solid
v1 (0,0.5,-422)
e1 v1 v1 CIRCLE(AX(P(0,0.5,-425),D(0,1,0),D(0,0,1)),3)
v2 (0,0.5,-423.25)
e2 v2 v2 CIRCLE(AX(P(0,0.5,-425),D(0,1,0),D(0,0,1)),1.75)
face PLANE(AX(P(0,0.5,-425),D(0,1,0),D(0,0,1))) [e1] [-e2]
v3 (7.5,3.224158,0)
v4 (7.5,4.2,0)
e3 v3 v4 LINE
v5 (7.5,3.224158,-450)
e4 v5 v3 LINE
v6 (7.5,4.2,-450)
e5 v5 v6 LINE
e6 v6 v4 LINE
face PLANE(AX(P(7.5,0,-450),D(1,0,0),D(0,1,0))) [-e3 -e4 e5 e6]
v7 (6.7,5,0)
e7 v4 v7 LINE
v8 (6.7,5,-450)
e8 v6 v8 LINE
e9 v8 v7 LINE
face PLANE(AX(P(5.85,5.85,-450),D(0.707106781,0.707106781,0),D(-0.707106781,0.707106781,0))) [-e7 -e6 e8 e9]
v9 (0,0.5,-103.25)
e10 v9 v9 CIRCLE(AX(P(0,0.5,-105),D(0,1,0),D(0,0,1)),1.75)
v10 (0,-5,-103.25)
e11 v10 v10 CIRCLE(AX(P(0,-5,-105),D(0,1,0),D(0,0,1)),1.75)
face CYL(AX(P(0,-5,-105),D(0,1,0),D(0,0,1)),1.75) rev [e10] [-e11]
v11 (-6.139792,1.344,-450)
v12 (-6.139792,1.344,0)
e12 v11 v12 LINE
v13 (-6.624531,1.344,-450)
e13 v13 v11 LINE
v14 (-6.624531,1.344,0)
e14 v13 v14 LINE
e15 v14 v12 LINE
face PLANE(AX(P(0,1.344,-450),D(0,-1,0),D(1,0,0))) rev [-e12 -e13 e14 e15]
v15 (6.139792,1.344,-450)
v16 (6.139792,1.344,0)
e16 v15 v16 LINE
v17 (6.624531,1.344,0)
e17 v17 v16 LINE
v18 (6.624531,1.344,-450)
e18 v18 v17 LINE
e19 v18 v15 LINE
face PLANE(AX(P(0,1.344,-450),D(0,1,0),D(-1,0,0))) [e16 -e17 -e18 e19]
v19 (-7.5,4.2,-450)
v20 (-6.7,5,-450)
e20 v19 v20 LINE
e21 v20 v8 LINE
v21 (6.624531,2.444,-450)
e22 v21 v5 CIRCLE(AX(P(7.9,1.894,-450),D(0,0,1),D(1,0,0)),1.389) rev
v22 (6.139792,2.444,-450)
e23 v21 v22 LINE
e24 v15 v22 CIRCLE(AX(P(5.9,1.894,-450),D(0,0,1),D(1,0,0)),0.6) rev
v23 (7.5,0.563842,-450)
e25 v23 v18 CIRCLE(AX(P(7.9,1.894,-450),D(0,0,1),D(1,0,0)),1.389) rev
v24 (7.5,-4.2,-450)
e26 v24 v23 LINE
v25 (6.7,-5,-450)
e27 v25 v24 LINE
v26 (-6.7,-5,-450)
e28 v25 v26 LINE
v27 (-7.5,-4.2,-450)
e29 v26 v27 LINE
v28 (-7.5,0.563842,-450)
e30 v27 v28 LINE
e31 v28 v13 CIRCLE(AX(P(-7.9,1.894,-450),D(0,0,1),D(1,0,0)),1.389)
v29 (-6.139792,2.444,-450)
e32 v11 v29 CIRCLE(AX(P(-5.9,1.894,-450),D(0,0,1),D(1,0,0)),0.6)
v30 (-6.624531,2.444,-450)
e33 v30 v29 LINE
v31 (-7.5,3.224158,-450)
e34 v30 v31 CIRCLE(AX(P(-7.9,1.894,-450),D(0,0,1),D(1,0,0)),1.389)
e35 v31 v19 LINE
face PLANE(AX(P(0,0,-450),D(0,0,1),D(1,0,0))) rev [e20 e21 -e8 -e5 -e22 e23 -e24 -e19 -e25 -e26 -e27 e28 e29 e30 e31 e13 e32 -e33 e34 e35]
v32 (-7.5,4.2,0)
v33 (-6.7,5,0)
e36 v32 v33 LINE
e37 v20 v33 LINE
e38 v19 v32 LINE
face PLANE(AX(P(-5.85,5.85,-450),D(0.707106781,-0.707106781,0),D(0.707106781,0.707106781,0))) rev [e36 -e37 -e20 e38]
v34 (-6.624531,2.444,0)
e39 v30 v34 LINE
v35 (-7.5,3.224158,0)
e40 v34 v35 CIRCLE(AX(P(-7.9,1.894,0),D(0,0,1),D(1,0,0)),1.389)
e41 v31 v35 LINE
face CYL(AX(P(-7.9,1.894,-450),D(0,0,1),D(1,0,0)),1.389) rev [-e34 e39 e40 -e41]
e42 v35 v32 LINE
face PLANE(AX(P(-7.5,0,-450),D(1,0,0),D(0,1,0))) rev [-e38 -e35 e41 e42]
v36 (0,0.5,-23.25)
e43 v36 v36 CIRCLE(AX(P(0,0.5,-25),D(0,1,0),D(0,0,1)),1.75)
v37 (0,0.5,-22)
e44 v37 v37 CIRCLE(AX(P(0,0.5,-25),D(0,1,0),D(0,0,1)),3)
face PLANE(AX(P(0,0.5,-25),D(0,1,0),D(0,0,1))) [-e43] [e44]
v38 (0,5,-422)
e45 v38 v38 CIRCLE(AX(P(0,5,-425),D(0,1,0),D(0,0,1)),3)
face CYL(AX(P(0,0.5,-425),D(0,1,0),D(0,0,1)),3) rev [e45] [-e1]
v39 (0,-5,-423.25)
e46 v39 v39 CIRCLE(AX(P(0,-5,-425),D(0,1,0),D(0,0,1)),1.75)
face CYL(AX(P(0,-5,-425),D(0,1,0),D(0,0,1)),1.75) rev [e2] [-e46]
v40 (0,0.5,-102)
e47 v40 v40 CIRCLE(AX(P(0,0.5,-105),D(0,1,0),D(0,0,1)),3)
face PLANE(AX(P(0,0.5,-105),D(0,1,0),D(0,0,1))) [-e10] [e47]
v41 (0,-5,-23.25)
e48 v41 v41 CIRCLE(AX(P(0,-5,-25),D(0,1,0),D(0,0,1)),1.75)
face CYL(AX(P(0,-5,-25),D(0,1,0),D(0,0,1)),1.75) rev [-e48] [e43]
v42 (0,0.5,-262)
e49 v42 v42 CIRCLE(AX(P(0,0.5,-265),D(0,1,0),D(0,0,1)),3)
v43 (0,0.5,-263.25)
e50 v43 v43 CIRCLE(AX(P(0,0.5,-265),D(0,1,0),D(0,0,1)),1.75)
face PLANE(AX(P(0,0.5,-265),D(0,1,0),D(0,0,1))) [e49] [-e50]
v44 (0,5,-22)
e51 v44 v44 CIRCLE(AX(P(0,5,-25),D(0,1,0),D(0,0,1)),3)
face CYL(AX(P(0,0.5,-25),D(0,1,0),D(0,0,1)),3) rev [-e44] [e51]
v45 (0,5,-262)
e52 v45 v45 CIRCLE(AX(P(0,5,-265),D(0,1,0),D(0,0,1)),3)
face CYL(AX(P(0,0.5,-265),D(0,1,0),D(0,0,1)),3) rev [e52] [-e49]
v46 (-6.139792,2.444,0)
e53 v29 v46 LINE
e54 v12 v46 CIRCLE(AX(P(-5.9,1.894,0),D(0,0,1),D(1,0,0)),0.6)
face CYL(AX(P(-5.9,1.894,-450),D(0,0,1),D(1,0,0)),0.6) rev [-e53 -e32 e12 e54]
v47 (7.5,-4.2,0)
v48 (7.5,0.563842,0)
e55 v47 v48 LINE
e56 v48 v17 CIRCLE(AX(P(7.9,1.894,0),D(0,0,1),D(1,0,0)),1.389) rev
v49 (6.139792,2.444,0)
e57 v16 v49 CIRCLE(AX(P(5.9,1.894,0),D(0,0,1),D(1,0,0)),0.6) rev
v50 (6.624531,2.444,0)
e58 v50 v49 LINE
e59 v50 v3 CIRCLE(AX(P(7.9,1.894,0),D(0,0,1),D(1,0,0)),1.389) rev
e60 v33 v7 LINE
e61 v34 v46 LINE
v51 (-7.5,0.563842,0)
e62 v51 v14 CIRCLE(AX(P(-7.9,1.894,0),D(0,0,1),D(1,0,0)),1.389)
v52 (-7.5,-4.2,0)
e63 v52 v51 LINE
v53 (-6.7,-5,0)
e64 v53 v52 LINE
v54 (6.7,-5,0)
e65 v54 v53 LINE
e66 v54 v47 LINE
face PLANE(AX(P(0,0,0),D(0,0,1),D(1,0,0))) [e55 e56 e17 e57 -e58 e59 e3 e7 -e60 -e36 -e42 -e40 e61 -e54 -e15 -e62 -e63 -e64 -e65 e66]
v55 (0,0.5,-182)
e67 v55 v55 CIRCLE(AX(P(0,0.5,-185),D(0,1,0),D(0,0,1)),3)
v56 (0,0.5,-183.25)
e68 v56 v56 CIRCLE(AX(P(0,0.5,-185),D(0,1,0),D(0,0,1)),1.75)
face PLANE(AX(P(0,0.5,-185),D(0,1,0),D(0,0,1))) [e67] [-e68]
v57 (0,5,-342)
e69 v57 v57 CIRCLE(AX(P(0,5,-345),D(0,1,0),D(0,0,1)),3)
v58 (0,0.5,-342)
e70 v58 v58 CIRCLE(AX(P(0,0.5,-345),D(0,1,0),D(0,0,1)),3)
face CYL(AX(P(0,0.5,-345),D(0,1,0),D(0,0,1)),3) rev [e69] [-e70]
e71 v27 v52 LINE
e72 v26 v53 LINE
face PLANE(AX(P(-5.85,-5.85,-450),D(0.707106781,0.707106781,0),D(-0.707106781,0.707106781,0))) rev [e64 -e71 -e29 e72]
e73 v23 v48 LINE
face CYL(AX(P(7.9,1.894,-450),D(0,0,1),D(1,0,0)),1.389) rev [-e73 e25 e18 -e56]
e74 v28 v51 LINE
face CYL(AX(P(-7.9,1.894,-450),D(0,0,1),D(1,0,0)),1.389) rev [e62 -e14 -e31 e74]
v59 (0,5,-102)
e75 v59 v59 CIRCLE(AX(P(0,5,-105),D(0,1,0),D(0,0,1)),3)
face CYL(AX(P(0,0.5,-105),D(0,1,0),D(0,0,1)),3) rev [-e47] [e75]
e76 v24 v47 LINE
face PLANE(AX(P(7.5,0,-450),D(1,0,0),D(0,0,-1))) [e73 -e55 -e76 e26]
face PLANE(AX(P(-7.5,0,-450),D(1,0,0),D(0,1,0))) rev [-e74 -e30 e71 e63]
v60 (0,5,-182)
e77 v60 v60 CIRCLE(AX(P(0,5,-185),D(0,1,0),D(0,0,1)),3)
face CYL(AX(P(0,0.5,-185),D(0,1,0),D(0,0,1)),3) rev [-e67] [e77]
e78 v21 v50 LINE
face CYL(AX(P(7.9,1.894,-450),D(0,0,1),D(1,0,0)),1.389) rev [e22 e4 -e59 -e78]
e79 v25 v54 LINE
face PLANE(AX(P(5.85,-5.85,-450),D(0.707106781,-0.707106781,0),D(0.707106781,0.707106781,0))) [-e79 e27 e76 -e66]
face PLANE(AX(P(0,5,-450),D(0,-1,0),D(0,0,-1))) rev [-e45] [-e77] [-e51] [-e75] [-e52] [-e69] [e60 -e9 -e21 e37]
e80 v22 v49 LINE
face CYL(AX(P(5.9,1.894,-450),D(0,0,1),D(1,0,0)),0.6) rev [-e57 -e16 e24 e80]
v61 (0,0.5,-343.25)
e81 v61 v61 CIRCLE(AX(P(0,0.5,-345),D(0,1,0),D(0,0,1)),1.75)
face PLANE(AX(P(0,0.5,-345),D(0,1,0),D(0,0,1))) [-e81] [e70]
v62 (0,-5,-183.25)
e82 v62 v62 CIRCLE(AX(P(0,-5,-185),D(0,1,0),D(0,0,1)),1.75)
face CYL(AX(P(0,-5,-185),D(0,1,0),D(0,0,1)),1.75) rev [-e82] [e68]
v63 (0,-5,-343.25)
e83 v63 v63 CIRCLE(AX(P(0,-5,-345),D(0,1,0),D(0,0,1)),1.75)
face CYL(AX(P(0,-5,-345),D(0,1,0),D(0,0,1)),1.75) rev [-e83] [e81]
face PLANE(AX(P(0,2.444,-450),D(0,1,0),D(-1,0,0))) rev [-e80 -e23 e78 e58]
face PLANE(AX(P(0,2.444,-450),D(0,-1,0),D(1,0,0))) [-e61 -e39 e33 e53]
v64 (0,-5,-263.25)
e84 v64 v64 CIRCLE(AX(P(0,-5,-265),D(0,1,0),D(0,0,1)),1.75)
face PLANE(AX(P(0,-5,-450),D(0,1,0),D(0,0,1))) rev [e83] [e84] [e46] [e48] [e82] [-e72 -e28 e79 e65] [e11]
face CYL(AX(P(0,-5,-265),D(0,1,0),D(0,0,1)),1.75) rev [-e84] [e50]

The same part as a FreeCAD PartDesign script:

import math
import FreeCAD as App
import Part
import Sketcher

V = App.Vector

doc = App.newDocument("Part")
body = doc.addObject("PartDesign::Body", "Body")

# Sketch on XY plane
sketch1 = body.newObject("Sketcher::SketchObject", "Sketch")
sketch1.AttachmentSupport = (doc.getObject("XY_Plane"), [""])
sketch1.MapMode = "FlatFace"
sketch1.addGeometry(Part.LineSegment(V(6.14, 2.44, 0), V(6.62, 2.44, 0)), False)
sketch1.addGeometry(Part.ArcOfCircle(Part.Circle(V(7.9, 1.89, 0), V(0, 0, 1), 1.39), math.radians(107), math.radians(157)), False)
sketch1.addGeometry(Part.LineSegment(V(7.5, 3.22, 0), V(7.5, 4.2, 0)), False)
sketch1.addGeometry(Part.LineSegment(V(7.5, 4.2, 0), V(6.7, 5, 0)), False)
sketch1.addGeometry(Part.LineSegment(V(6.7, 5, 0), V(-6.7, 5, 0)), False)
sketch1.addGeometry(Part.LineSegment(V(-6.7, 5, 0), V(-7.5, 4.2, 0)), False)
sketch1.addGeometry(Part.LineSegment(V(-7.5, 4.2, 0), V(-7.5, 3.22, 0)), False)
sketch1.addGeometry(Part.ArcOfCircle(Part.Circle(V(-7.9, 1.89, 0), V(0, 0, 1), 1.39), math.radians(23), math.radians(73)), False)
sketch1.addGeometry(Part.LineSegment(V(-6.62, 2.44, 0), V(-6.14, 2.44, 0)), False)
sketch1.addGeometry(Part.ArcOfCircle(Part.Circle(V(-5.9, 1.89, 0), V(0, 0, 1), 0.6), math.radians(-114), math.radians(114)), False)
sketch1.addGeometry(Part.LineSegment(V(-6.14, 1.34, 0), V(-6.62, 1.34, 0)), False)
sketch1.addGeometry(Part.ArcOfCircle(Part.Circle(V(-7.9, 1.89, 0), V(0, 0, 1), 1.39), math.radians(-73), math.radians(-23)), False)
sketch1.addGeometry(Part.LineSegment(V(-7.5, 0.56, 0), V(-7.5, -4.2, 0)), False)
sketch1.addGeometry(Part.LineSegment(V(-7.5, -4.2, 0), V(-6.7, -5, 0)), False)
sketch1.addGeometry(Part.LineSegment(V(-6.7, -5, 0), V(6.7, -5, 0)), False)
sketch1.addGeometry(Part.LineSegment(V(6.7, -5, 0), V(7.5, -4.2, 0)), False)
sketch1.addGeometry(Part.LineSegment(V(7.5, -4.2, 0), V(7.5, 0.56, 0)), False)
sketch1.addGeometry(Part.ArcOfCircle(Part.Circle(V(7.9, 1.89, 0), V(0, 0, 1), 1.39), math.radians(-157), math.radians(-107)), False)
sketch1.addGeometry(Part.LineSegment(V(6.62, 1.34, 0), V(6.14, 1.34, 0)), False)
sketch1.addGeometry(Part.ArcOfCircle(Part.Circle(V(5.9, 1.89, 0), V(0, 0, 1), 0.6), math.radians(66), math.radians(294)), False)
sketch1.addConstraint(Sketcher.Constraint("Coincident", 0, 2, 1, 2))
sketch1.addConstraint(Sketcher.Constraint("Coincident", 1, 1, 2, 1))
sketch1.addConstraint(Sketcher.Constraint("Coincident", 2, 2, 3, 1))
sketch1.addConstraint(Sketcher.Constraint("Coincident", 3, 2, 4, 1))
sketch1.addConstraint(Sketcher.Constraint("Coincident", 4, 2, 5, 1))
sketch1.addConstraint(Sketcher.Constraint("Coincident", 5, 2, 6, 1))
sketch1.addConstraint(Sketcher.Constraint("Coincident", 6, 2, 7, 2))
sketch1.addConstraint(Sketcher.Constraint("Coincident", 7, 1, 8, 1))
sketch1.addConstraint(Sketcher.Constraint("Coincident", 8, 2, 9, 2))
sketch1.addConstraint(Sketcher.Constraint("Coincident", 9, 1, 10, 1))
sketch1.addConstraint(Sketcher.Constraint("Coincident", 10, 2, 11, 2))
sketch1.addConstraint(Sketcher.Constraint("Coincident", 11, 1, 12, 1))
sketch1.addConstraint(Sketcher.Constraint("Coincident", 12, 2, 13, 1))
sketch1.addConstraint(Sketcher.Constraint("Coincident", 13, 2, 14, 1))
sketch1.addConstraint(Sketcher.Constraint("Coincident", 14, 2, 15, 1))
sketch1.addConstraint(Sketcher.Constraint("Coincident", 15, 2, 16, 1))
sketch1.addConstraint(Sketcher.Constraint("Coincident", 16, 2, 17, 2))
sketch1.addConstraint(Sketcher.Constraint("Coincident", 17, 1, 18, 1))
sketch1.addConstraint(Sketcher.Constraint("Coincident", 18, 2, 19, 2))
sketch1.addConstraint(Sketcher.Constraint("Coincident", 19, 1, 0, 1))
sketch1.addConstraint(Sketcher.Constraint("Horizontal", 0))
sketch1.addConstraint(Sketcher.Constraint("Vertical", 2))
sketch1.addConstraint(Sketcher.Constraint("Horizontal", 4))
sketch1.addConstraint(Sketcher.Constraint("Vertical", 6))
sketch1.addConstraint(Sketcher.Constraint("Horizontal", 8))
sketch1.addConstraint(Sketcher.Constraint("Horizontal", 10))
sketch1.addConstraint(Sketcher.Constraint("Vertical", 12))
sketch1.addConstraint(Sketcher.Constraint("Horizontal", 14))
sketch1.addConstraint(Sketcher.Constraint("Vertical", 16))
sketch1.addConstraint(Sketcher.Constraint("Horizontal", 18))
sketch1.addConstraint(Sketcher.Constraint("Coincident", 11, 3, 7, 3))
sketch1.addConstraint(Sketcher.Constraint("Coincident", 17, 3, 1, 3))
sketch1.addConstraint(Sketcher.Constraint("Equal", 1, 7))
sketch1.addConstraint(Sketcher.Constraint("Equal", 7, 11))
sketch1.addConstraint(Sketcher.Constraint("Equal", 11, 17))
sketch1.addConstraint(Sketcher.Constraint("Equal", 9, 19))
sketch1.addConstraint(Sketcher.Constraint("Symmetric", 2, 2, 12, 2, -1, 1))
sketch1.addConstraint(Sketcher.Constraint("Symmetric", 3, 2, 13, 2, -1, 1))
sketch1.addConstraint(Sketcher.Constraint("Symmetric", 5, 2, 15, 2, -1, 1))
sketch1.addConstraint(Sketcher.Constraint("Symmetric", 1, 3, 7, 3, -2))
sketch1.addConstraint(Sketcher.Constraint("Symmetric", 9, 3, 19, 3, -2))
sketch1.addConstraint(Sketcher.Constraint("Symmetric", 2, 2, 5, 2, -2))
sketch1.addConstraint(Sketcher.Constraint("Perpendicular", 3, 5))
sketch1.addConstraint(Sketcher.Constraint("Perpendicular", 13, 15))
sketch1.addConstraint(Sketcher.Constraint("Horizontal", 7, 3, 9, 3))
sketch1.addConstraint(Sketcher.Constraint("Horizontal", 0, 2, 7, 1))
sketch1.addConstraint(Sketcher.Constraint("Horizontal", 10, 2, 17, 1))
sketch1.addConstraint(Sketcher.Constraint("Vertical", 8, 2, 9, 1))
sketch1.addConstraint(Sketcher.Constraint("Vertical", 4, 2, 13, 2))
sketch1.addConstraint(Sketcher.Constraint("Radius", 9, 0.6))
sketch1.addConstraint(Sketcher.Constraint("DistanceX", 4, 2, 4, 1, 13.4))
sketch1.addConstraint(Sketcher.Constraint("DistanceY", -1, 1, 3, 2, 5.0))
sketch1.addConstraint(Sketcher.Constraint("Radius", 1, 1.389))
sketch1.addConstraint(Sketcher.Constraint("DistanceX", 7, 3, 9, 3, 2.0))
sketch1.addConstraint(Sketcher.Constraint("DistanceX", -1, 1, 1, 3, 7.9))
sketch1.addConstraint(Sketcher.Constraint("DistanceX", -1, 1, 1, 1, 7.5))
sketch1.addConstraint(Sketcher.Constraint("DistanceY", 9, 1, 8, 2, 1.1))
sketch1.addConstraint(Sketcher.Constraint("DistanceY", -1, 1, 1, 3, 1.894))
pad1 = body.newObject("PartDesign::Pad", "Pad")
pad1.Profile = sketch1
pad1.Length = 450
pad1.Reversed = True

# Sketch on XZ plane
sketch2 = body.newObject("Sketcher::SketchObject", "Sketch001")
sketch2.AttachmentSupport = (doc.getObject("XZ_Plane"), [""])
sketch2.MapMode = "FlatFace"
sketch2.AttachmentOffset = App.Placement(V(0, 0, -5), App.Rotation())
sketch2.addGeometry(Part.Circle(V(0, -25, 0), V(0, 0, 1), 3), False)
sketch2.addConstraint(Sketcher.Constraint("PointOnObject", 0, 3, -2))
sketch2.addConstraint(Sketcher.Constraint("Diameter", 0, 6.0))
sketch2.addConstraint(Sketcher.Constraint("DistanceY", 0, 3, -1, 1, 25.0))
pocket1 = body.newObject("PartDesign::Pocket", "Pocket")
pocket1.Profile = sketch2
pocket1.Length = 4.5
pocket1.Reversed = True

# Sketch on XZ plane
sketch3 = body.newObject("Sketcher::SketchObject", "Sketch002")
sketch3.AttachmentSupport = (doc.getObject("XZ_Plane"), [""])
sketch3.MapMode = "FlatFace"
sketch3.AttachmentOffset = App.Placement(V(0, 0, -0.5), App.Rotation())
sketch3.addGeometry(Part.Circle(V(0, -25, 0), V(0, 0, 1), 1.8), False)
sketch3.addConstraint(Sketcher.Constraint("PointOnObject", 0, 3, -2))
sketch3.addConstraint(Sketcher.Constraint("Diameter", 0, 3.5))
sketch3.addConstraint(Sketcher.Constraint("DistanceY", 0, 3, -1, 1, 25.0))
pocket2 = body.newObject("PartDesign::Pocket", "Pocket001")
pocket2.Profile = sketch3
pocket2.Type = "ThroughAll"
pocket2.Reversed = True
doc.recompute()

linearpattern = body.newObject("PartDesign::LinearPattern", "LinearPattern")
linearpattern.Originals = [pocket1, pocket2]
linearpattern.Direction = (doc.getObject("Z_Axis"), [""])
linearpattern.Mode = "offset"
linearpattern.Offset = 80
linearpattern.Occurrences = 6
linearpattern.Reversed = True
body.Tip = linearpattern

doc.recompute()
